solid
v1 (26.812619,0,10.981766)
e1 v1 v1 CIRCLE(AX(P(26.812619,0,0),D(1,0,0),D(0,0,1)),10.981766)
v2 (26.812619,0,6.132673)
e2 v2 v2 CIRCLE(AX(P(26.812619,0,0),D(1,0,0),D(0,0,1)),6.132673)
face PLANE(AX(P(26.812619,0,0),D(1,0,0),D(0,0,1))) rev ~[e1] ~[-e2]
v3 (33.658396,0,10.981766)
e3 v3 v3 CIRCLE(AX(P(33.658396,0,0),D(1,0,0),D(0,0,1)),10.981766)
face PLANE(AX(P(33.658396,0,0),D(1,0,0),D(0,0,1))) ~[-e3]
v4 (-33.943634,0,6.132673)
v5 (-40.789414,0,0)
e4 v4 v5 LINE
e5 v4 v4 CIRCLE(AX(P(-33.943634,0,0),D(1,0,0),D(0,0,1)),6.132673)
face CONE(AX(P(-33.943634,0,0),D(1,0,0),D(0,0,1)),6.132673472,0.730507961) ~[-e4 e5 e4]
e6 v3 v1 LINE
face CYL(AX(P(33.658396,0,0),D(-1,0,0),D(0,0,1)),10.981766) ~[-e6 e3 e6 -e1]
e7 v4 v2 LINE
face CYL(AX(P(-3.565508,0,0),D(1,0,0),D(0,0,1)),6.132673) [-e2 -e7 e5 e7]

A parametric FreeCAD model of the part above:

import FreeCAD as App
import Part
import Sketcher
Q = App.Units.Quantity

doc = App.newDocument("Part")
body = doc.addObject("PartDesign::Body", "Body")

sketch1 = body.newObject("Sketcher::SketchObject", "Sketch")
sketch1.AttachmentSupport = (doc.getObject("XZ_Plane"), [""])
sketch1.MapMode = "FlatFace"
sketch1.addGeometry(Part.LineSegment(App.Vector(26.812619, 6.132673, 0), App.Vector(-33.943634, 6.132673, 0)), False)
sketch1.addGeometry(Part.LineSegment(App.Vector(-33.943634, 6.132673, 0), App.Vector(-40.789414, 0, 0)), False)
sketch1.addGeometry(Part.LineSegment(App.Vector(-40.789414, 0, 0), App.Vector(33.658396, 0, 0)), False)
sketch1.addGeometry(Part.LineSegment(App.Vector(33.658396, 0, 0), App.Vector(33.658396, 10.981766, 0)), False)
sketch1.addGeometry(Part.LineSegment(App.Vector(33.658396, 10.981766, 0), App.Vector(26.812619, 10.981766, 0)), False)
sketch1.addGeometry(Part.LineSegment(App.Vector(26.812619, 10.981766, 0), App.Vector(26.812619, 6.132673, 0)), False)
sketch1.addConstraint(Sketcher.Constraint("Coincident", 0, 2, 1, 1))
sketch1.addConstraint(Sketcher.Constraint("Coincident", 1, 2, 2, 1))
sketch1.addConstraint(Sketcher.Constraint("Coincident", 2, 2, 3, 1))
sketch1.addConstraint(Sketcher.Constraint("Coincident", 3, 2, 4, 1))
sketch1.addConstraint(Sketcher.Constraint("Coincident", 4, 2, 5, 1))
sketch1.addConstraint(Sketcher.Constraint("Coincident", 5, 2, 0, 1))
sketch1.addConstraint(Sketcher.Constraint("Horizontal", 0))
sketch1.addConstraint(Sketcher.Constraint("Horizontal", 2))
sketch1.addConstraint(Sketcher.Constraint("Vertical", 3))
sketch1.addConstraint(Sketcher.Constraint("Horizontal", 4))
sketch1.addConstraint(Sketcher.Constraint("Vertical", 5))
sketch1.addConstraint(Sketcher.Constraint("PointOnObject", 1, 2, -1))
sketch1.addConstraint(Sketcher.Constraint("DistanceX", 2, 1, 2, 2, Q("74.447811 mm")))
sketch1.addConstraint(Sketcher.Constraint("DistanceX", 0, 2, 0, 1, Q("60.756253 mm")))
sketch1.addConstraint(Sketcher.Constraint("DistanceX", 4, 2, 4, 1, Q("6.845778 mm")))
sketch1.addConstraint(Sketcher.Constraint("DistanceY", 3, 1, 3, 2, Q("10.981766 mm")))
sketch1.addConstraint(Sketcher.Constraint("DistanceY", 5, 2, 5, 1, Q("4.849092 mm")))
sketch1.addConstraint(Sketcher.Constraint("DistanceX", -1, 1, 4, 2, Q("26.812619 mm")))
revolution = body.newObject("PartDesign::Revolution", "Revolution")
revolution.Profile = sketch1
revolution.ReferenceAxis = (sketch1, ["H_Axis"])
revolution.Angle = 360

doc.recompute()
